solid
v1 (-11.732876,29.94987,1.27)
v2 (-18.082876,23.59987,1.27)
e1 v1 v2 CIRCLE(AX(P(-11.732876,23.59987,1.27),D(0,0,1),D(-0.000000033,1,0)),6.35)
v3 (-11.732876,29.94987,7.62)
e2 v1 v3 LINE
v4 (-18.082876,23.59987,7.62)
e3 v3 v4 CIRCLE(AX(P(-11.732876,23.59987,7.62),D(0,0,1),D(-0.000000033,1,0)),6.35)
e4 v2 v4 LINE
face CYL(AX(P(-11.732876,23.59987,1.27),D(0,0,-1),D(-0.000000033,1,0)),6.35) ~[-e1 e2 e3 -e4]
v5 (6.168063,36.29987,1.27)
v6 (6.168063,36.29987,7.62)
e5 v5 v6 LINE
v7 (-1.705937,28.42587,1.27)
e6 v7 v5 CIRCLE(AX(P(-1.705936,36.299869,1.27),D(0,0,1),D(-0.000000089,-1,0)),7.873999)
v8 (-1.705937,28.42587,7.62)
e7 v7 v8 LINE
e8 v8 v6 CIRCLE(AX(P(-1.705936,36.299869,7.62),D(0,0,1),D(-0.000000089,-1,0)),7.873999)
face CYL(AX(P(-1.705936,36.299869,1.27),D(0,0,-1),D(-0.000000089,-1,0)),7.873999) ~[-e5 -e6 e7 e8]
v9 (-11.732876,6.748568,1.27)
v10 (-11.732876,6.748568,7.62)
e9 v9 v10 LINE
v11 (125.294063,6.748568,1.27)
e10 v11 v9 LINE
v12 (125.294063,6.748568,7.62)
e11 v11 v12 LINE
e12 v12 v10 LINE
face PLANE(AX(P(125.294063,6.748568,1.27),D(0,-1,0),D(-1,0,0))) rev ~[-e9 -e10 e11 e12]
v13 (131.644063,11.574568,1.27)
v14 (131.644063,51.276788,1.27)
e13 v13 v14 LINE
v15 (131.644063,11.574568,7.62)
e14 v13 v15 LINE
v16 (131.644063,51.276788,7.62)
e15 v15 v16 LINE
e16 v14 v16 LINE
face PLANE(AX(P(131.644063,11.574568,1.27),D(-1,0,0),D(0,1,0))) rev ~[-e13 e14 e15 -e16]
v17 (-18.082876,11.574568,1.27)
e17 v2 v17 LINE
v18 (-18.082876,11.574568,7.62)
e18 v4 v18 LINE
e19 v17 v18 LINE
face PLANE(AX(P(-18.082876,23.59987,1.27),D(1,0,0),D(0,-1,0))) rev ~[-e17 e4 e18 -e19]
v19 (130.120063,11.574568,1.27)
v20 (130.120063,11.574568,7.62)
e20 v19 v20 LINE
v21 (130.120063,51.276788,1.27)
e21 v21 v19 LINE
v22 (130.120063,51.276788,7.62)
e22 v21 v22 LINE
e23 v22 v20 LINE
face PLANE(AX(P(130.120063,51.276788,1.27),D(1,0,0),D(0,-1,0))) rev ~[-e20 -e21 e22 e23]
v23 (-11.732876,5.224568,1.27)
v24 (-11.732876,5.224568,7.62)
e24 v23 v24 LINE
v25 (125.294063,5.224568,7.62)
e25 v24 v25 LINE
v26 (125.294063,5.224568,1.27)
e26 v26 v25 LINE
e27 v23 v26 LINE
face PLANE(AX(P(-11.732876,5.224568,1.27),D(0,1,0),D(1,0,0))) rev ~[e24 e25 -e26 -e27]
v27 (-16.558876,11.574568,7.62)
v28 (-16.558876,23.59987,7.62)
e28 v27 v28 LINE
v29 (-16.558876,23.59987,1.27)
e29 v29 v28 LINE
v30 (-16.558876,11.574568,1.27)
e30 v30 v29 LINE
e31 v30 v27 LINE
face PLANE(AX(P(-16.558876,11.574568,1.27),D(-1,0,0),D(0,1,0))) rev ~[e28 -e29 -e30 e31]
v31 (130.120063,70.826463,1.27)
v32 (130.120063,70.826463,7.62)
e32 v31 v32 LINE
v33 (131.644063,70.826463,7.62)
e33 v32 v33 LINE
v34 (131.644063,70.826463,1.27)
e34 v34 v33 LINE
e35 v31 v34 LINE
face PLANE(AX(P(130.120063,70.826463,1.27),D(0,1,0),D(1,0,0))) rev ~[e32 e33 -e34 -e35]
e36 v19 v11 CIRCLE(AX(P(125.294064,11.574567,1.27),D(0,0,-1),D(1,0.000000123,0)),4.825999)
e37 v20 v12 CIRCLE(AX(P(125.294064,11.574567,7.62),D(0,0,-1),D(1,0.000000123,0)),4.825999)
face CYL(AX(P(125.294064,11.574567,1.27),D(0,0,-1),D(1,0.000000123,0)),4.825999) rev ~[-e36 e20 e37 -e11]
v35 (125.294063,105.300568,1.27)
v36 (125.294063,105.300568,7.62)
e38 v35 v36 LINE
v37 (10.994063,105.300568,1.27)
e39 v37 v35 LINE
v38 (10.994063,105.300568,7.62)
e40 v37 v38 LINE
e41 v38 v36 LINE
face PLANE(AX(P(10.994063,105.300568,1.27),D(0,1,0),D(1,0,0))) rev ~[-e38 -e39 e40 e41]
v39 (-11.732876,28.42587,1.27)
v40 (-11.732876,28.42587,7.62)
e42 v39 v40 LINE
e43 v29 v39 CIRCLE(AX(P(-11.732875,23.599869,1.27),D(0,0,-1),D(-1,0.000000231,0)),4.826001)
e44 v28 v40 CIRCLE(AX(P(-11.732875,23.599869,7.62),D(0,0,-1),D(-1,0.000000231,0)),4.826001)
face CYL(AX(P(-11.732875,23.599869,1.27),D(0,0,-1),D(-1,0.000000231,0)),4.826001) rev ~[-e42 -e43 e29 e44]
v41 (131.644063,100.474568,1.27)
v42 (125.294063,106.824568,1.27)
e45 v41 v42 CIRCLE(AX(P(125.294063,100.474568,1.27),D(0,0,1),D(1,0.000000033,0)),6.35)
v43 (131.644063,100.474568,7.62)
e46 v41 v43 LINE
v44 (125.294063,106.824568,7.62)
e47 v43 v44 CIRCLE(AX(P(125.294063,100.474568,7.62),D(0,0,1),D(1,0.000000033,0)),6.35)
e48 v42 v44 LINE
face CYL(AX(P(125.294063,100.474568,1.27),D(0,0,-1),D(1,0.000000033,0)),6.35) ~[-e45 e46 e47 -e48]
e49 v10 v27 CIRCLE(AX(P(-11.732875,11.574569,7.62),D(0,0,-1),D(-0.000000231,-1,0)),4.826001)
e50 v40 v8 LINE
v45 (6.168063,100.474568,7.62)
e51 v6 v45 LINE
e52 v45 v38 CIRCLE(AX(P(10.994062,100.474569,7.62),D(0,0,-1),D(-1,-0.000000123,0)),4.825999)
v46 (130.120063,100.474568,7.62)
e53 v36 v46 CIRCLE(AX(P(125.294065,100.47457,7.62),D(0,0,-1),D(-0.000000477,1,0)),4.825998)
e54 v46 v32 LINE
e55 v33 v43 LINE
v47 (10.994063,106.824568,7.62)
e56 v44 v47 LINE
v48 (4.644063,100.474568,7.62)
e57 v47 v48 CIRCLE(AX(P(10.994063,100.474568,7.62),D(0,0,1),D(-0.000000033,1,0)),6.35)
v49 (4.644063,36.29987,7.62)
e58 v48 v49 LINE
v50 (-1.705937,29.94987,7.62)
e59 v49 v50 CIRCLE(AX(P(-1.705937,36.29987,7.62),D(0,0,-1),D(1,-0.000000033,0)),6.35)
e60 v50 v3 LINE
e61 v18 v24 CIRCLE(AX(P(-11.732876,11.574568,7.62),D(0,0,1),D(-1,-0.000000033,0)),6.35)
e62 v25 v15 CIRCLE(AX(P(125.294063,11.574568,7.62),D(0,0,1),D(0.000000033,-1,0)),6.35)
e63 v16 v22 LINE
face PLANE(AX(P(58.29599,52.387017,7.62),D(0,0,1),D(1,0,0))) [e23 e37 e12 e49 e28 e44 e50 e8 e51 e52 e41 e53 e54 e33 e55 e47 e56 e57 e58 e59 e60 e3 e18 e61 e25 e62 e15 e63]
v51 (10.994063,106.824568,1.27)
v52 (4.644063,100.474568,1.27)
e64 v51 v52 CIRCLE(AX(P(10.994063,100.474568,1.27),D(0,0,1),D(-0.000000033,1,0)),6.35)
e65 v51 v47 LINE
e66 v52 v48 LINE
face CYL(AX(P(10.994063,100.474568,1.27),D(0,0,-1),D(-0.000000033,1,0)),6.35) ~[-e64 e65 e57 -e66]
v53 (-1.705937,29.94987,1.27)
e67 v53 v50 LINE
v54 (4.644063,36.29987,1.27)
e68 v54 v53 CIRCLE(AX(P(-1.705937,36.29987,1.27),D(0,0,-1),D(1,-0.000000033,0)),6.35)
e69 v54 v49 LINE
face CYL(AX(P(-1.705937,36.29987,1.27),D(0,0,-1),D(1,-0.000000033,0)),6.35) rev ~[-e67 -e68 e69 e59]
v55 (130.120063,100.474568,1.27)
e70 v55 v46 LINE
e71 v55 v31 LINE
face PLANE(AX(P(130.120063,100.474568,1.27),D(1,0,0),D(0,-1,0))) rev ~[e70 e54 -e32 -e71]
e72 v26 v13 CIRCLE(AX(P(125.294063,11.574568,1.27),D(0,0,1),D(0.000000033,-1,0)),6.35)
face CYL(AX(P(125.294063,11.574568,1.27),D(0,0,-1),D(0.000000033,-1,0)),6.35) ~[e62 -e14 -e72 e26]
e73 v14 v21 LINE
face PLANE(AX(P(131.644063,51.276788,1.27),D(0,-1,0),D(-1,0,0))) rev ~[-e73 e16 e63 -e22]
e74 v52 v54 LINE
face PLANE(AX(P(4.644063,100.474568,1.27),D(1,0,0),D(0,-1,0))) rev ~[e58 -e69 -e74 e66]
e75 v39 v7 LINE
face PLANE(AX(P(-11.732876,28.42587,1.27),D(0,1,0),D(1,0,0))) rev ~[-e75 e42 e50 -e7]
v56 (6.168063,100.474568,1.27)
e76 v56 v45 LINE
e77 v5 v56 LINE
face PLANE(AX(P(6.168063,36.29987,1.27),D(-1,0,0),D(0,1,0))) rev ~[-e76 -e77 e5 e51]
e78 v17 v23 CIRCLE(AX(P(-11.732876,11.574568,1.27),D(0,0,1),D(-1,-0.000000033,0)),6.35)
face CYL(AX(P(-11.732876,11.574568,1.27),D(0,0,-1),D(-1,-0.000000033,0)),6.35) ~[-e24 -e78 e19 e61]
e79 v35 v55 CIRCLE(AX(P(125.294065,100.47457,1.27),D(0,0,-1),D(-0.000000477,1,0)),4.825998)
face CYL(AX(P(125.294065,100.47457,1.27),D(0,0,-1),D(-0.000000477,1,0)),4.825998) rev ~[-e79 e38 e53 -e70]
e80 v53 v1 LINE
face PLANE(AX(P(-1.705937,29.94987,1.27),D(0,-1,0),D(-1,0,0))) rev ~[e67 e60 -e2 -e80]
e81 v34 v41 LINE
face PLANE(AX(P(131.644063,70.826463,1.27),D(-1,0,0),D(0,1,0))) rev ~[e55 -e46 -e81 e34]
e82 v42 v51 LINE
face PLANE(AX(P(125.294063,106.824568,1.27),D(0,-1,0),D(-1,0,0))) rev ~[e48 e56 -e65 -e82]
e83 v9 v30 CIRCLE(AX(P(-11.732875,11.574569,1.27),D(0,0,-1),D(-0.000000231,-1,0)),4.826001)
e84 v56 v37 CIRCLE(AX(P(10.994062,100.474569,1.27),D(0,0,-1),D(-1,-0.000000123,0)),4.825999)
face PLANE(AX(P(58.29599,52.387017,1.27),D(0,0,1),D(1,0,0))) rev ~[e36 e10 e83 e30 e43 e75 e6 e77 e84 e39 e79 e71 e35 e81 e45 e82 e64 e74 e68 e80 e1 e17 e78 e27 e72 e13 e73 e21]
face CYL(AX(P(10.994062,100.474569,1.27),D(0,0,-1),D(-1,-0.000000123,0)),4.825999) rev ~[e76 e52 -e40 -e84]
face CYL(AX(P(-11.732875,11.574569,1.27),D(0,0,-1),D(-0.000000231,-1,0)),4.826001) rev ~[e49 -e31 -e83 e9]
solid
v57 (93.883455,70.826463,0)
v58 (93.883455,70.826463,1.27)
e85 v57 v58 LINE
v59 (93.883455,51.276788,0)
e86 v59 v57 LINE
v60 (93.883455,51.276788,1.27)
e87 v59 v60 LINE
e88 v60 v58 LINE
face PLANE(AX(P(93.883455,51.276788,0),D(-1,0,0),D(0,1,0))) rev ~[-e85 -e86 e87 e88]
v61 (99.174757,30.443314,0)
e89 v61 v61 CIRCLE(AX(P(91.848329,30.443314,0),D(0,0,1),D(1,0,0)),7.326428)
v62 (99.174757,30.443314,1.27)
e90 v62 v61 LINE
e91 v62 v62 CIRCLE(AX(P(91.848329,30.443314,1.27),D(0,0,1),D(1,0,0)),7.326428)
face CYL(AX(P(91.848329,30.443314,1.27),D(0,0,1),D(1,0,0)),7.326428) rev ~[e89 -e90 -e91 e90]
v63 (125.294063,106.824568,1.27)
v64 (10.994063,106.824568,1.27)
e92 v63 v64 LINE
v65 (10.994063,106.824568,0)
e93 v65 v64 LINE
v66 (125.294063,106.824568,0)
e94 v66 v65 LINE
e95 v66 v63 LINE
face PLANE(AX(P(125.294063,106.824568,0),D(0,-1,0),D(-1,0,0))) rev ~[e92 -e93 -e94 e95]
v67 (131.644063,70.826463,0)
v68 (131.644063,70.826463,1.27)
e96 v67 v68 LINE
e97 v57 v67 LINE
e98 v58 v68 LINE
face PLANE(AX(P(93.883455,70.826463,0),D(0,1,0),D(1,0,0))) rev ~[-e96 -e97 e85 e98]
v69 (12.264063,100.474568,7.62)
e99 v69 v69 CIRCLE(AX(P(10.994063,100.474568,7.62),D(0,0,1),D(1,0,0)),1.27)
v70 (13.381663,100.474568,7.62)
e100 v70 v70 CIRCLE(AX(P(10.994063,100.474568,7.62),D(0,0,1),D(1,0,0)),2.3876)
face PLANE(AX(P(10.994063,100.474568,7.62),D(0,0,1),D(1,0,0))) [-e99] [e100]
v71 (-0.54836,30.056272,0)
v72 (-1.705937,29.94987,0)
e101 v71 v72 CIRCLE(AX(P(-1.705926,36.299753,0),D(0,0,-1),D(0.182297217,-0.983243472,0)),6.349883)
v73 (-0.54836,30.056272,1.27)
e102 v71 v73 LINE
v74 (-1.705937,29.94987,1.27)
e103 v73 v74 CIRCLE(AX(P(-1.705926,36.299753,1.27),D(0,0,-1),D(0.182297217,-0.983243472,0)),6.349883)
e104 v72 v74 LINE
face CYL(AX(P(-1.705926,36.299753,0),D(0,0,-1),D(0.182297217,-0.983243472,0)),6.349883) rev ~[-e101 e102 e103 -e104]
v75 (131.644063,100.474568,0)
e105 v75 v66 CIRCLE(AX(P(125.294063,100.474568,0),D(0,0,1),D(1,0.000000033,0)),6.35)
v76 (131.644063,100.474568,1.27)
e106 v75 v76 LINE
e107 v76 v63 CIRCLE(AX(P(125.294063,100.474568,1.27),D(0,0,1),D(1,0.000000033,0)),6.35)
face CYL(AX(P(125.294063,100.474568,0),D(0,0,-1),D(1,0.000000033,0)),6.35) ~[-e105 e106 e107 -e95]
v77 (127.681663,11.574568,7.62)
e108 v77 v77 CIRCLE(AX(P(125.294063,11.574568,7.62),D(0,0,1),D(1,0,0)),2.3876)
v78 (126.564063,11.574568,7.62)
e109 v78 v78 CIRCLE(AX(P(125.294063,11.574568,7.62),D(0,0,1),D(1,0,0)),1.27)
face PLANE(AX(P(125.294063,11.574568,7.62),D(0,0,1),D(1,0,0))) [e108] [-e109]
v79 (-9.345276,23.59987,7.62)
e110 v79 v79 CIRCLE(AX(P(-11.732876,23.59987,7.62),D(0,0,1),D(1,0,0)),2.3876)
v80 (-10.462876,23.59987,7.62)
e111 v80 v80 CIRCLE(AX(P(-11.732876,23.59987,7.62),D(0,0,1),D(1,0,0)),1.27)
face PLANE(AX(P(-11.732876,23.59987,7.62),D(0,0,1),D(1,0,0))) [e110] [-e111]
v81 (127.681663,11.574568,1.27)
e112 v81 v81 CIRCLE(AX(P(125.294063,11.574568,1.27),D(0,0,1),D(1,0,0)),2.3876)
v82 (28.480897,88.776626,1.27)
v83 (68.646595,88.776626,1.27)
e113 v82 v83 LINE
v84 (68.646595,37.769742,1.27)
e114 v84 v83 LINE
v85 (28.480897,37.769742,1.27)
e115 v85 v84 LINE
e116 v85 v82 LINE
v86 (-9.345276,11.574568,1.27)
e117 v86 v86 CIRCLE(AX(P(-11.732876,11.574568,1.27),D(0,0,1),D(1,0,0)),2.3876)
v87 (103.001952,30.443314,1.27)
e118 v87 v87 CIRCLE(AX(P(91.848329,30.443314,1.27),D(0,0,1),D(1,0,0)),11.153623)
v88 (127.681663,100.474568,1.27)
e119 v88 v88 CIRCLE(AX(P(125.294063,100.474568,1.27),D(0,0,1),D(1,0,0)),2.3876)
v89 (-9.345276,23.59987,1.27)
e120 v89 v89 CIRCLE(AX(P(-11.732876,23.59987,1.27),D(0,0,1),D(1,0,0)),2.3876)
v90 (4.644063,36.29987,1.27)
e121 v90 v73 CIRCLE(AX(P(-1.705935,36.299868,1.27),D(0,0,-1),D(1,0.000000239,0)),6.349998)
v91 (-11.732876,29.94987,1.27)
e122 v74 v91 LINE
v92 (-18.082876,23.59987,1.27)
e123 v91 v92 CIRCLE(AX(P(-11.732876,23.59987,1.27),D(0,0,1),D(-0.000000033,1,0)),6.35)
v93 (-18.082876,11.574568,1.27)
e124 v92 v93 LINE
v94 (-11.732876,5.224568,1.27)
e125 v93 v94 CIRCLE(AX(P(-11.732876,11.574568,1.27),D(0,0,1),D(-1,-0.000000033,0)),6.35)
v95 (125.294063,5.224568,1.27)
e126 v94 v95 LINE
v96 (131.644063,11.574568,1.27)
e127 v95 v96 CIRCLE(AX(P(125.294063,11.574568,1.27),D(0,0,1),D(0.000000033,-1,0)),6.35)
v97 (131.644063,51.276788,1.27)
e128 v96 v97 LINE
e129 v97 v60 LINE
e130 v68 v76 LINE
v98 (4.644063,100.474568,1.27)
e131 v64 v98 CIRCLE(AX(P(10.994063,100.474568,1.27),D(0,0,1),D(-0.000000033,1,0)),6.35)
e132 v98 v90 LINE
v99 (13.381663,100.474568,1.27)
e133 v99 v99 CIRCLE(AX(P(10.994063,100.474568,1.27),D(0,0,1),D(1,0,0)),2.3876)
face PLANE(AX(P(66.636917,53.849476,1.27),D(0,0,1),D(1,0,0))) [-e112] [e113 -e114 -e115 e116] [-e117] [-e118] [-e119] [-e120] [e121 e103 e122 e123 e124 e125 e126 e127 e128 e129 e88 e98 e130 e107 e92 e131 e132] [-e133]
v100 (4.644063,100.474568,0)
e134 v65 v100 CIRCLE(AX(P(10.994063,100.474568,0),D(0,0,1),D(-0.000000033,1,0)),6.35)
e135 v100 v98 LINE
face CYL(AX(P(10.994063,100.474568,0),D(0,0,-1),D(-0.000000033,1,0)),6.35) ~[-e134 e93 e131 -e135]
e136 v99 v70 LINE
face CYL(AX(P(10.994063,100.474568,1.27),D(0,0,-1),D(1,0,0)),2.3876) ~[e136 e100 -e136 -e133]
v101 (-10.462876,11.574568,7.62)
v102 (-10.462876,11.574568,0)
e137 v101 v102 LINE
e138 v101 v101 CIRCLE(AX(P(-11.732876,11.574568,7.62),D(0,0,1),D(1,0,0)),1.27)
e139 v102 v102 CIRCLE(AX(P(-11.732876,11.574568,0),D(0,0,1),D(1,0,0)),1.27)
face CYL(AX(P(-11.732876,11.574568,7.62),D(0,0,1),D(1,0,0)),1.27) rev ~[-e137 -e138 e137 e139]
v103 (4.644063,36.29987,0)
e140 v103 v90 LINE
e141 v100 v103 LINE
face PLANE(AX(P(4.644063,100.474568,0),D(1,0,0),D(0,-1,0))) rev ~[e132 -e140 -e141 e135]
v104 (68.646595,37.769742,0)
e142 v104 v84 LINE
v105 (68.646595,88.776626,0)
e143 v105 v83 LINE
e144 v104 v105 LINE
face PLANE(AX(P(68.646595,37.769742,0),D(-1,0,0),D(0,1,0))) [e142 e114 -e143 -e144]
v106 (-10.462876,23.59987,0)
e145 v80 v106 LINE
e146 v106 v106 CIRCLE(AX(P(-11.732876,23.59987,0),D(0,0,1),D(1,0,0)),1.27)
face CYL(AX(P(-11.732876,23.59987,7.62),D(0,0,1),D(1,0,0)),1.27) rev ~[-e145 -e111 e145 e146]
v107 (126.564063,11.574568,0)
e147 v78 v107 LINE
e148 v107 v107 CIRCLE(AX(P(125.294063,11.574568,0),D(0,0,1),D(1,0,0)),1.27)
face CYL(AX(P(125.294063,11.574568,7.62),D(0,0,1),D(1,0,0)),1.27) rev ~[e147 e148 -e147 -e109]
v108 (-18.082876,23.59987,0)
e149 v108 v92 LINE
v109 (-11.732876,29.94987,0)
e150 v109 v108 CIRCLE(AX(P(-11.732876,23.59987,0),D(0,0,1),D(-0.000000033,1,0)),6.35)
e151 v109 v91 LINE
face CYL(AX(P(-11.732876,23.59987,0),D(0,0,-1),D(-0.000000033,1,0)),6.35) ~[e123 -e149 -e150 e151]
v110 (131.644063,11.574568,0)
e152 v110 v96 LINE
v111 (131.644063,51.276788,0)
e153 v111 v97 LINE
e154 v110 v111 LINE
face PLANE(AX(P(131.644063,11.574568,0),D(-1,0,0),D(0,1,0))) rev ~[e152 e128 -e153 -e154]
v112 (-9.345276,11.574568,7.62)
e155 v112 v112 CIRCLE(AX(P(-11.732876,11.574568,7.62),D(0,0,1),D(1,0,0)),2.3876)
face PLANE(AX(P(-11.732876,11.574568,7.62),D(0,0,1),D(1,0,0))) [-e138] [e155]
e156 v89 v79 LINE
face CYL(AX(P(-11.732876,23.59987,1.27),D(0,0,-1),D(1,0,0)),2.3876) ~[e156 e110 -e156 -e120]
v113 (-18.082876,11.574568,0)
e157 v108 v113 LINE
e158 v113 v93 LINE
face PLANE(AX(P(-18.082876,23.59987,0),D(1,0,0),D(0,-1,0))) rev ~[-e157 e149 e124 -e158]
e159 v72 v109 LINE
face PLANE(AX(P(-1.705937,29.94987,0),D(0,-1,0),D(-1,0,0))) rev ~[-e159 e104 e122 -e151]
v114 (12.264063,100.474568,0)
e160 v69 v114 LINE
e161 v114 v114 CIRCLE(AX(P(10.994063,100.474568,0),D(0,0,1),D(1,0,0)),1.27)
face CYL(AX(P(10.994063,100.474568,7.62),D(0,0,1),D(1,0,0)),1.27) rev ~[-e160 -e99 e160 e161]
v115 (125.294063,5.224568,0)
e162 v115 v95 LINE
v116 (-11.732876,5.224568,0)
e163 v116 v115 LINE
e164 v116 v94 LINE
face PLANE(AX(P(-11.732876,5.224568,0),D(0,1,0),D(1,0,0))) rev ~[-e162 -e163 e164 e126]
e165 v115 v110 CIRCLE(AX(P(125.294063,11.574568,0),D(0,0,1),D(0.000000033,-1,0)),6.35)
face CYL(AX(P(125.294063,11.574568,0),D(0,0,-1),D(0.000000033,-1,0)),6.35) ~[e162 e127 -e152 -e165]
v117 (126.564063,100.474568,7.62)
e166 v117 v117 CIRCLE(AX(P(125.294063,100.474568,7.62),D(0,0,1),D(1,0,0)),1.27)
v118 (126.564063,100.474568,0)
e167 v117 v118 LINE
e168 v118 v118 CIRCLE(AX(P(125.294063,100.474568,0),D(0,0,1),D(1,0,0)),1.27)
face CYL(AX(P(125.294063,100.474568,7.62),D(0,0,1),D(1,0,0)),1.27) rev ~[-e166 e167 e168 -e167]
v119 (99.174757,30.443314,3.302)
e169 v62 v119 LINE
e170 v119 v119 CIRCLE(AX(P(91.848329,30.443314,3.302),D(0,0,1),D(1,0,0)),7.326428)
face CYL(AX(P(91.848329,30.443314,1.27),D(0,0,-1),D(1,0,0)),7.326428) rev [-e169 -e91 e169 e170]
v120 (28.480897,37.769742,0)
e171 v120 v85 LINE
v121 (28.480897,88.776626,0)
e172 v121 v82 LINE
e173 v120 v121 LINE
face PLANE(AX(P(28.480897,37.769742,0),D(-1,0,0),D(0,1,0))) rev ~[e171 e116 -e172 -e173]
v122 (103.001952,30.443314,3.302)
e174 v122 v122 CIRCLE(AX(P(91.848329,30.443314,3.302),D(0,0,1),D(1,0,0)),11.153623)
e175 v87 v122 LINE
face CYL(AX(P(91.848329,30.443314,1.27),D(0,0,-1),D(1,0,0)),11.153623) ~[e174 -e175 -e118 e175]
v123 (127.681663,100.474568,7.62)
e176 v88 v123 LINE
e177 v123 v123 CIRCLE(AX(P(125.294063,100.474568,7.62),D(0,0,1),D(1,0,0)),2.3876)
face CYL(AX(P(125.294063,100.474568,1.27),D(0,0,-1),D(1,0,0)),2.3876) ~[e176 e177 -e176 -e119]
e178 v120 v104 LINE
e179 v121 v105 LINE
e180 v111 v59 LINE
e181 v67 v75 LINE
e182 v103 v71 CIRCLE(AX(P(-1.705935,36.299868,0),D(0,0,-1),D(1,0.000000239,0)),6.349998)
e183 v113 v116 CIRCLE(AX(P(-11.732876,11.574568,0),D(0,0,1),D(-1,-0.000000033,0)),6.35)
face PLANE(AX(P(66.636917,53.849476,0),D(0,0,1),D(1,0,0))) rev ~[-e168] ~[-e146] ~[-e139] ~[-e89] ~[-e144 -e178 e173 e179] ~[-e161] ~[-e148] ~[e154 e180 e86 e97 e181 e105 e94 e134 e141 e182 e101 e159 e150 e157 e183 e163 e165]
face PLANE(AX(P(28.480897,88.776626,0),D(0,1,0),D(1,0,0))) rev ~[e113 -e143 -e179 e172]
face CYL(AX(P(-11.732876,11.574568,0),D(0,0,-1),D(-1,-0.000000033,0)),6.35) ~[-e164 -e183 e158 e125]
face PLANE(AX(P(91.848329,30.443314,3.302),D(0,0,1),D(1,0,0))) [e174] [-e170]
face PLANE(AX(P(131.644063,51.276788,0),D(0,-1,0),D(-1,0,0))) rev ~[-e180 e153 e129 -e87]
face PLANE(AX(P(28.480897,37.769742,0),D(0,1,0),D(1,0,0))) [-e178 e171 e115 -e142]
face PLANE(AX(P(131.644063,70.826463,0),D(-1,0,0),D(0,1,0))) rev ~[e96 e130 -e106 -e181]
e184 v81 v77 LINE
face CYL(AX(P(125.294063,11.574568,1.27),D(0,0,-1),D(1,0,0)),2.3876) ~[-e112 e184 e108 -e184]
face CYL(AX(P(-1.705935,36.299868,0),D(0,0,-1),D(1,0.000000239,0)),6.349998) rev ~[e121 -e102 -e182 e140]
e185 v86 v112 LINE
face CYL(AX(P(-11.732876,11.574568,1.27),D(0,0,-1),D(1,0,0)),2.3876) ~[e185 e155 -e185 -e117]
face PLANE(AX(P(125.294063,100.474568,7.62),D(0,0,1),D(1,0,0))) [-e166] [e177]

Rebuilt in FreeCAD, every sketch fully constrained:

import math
import FreeCAD as App
import Part
import Sketcher
from FreeCAD import Vector
Q = App.Units.Quantity


def add_polygon(sketch, points):
    """Adds a closed chain of lines whose ends are joined by coincident constraints."""
    first, n = sketch.GeometryCount, len(points)
    for a, b in zip(points, points[1:] + points[:1]):
        sketch.addGeometry(Part.LineSegment(App.Vector(*a, 0), App.Vector(*b, 0)), False)
    for i in range(n):
        sketch.addConstraint(Sketcher.Constraint("Coincident", first + i, 2, first + (i + 1) % n, 1))

doc = App.newDocument("Part")
body = doc.addObject("PartDesign::Body", "Body")

# Sketch on XY plane
sketch1 = body.newObject("Sketcher::SketchObject", "Sketch")
sketch1.AttachmentSupport = (doc.getObject("XY_Plane"), [""])
sketch1.MapMode = "FlatFace"
sketch1.addGeometry(Part.LineSegment(Vector(-11.732876, 5.224568, 0), Vector(125.294063, 5.224568, 0)), False)  # 0
sketch1.addGeometry(Part.ArcOfCircle(Part.Circle(Vector(125.294063, 11.574568, 0), Vector(0, 0, 1), 6.35), math.radians(-89.999998), math.radians(-0.000002)), False)  # 1
sketch1.addGeometry(Part.LineSegment(Vector(131.644063, 11.574568, 0), Vector(131.644063, 51.276788, 0)), False)  # 2
sketch1.addGeometry(Part.LineSegment(Vector(131.644063, 51.276788, 0), Vector(93.883455, 51.276788, 0)), False)  # 3
sketch1.addGeometry(Part.LineSegment(Vector(93.883455, 51.276788, 0), Vector(93.883455, 70.826463, 0)), False)  # 4
sketch1.addGeometry(Part.LineSegment(Vector(93.883455, 70.826463, 0), Vector(131.644063, 70.826463, 0)), False)  # 5
sketch1.addGeometry(Part.LineSegment(Vector(131.644063, 70.826463, 0), Vector(131.644063, 100.474568, 0)), False)  # 6
sketch1.addGeometry(Part.ArcOfCircle(Part.Circle(Vector(125.294063, 100.474568, 0), Vector(0, 0, 1), 6.35), math.radians(0.000002), math.radians(89.999998)), False)  # 7
sketch1.addGeometry(Part.LineSegment(Vector(125.294063, 106.824568, 0), Vector(10.994063, 106.824568, 0)), False)  # 8
sketch1.addGeometry(Part.ArcOfCircle(Part.Circle(Vector(10.994063, 100.474568, 0), Vector(0, 0, 1), 6.35), math.radians(90.000002), math.radians(179.999998)), False)  # 9
sketch1.addGeometry(Part.LineSegment(Vector(4.644063, 100.474568, 0), Vector(4.644063, 36.29987, 0)), False)  # 10
sketch1.addGeometry(Part.ArcOfCircle(Part.Circle(Vector(-1.705935, 36.299868, 0), Vector(0, 0, 1), 6.349998), math.radians(-79.496513), math.radians(0.000014)), False)  # 11
sketch1.addGeometry(Part.ArcOfCircle(Part.Circle(Vector(-1.705926, 36.299753, 0), Vector(0, 0, 1), 6.349883), math.radians(-90.000099), math.radians(-79.496405)), False)  # 12
sketch1.addGeometry(Part.LineSegment(Vector(-1.705937, 29.94987, 0), Vector(-11.732876, 29.94987, 0)), False)  # 13
sketch1.addGeometry(Part.ArcOfCircle(Part.Circle(Vector(-11.732876, 23.59987, 0), Vector(0, 0, 1), 6.35), math.radians(90.000002), math.radians(179.999998)), False)  # 14
sketch1.addGeometry(Part.LineSegment(Vector(-18.082876, 23.59987, 0), Vector(-18.082876, 11.574568, 0)), False)  # 15
sketch1.addGeometry(Part.ArcOfCircle(Part.Circle(Vector(-11.732876, 11.574568, 0), Vector(0, 0, 1), 6.35), math.radians(-179.999998), math.radians(-90.000002)), False)  # 16
add_polygon(sketch1, [(68.646595, 37.769742), (28.480897, 37.769742), (28.480897, 88.776626), (68.646595, 88.776626)])  # lines 17-20
sketch1.addConstraint(Sketcher.Constraint("Coincident", 0, 2, 1, 1))
sketch1.addConstraint(Sketcher.Constraint("Coincident", 1, 2, 2, 1))
sketch1.addConstraint(Sketcher.Constraint("Coincident", 2, 2, 3, 1))
sketch1.addConstraint(Sketcher.Constraint("Coincident", 3, 2, 4, 1))
sketch1.addConstraint(Sketcher.Constraint("Coincident", 4, 2, 5, 1))
sketch1.addConstraint(Sketcher.Constraint("Coincident", 5, 2, 6, 1))
sketch1.addConstraint(Sketcher.Constraint("Coincident", 6, 2, 7, 1))
sketch1.addConstraint(Sketcher.Constraint("Coincident", 7, 2, 8, 1))
sketch1.addConstraint(Sketcher.Constraint("Coincident", 8, 2, 9, 1))
sketch1.addConstraint(Sketcher.Constraint("Coincident", 9, 2, 10, 1))
sketch1.addConstraint(Sketcher.Constraint("Coincident", 10, 2, 11, 2))
sketch1.addConstraint(Sketcher.Constraint("Coincident", 11, 1, 12, 2))
sketch1.addConstraint(Sketcher.Constraint("Coincident", 12, 1, 13, 1))
sketch1.addConstraint(Sketcher.Constraint("Coincident", 13, 2, 14, 1))
sketch1.addConstraint(Sketcher.Constraint("Coincident", 14, 2, 15, 1))
sketch1.addConstraint(Sketcher.Constraint("Coincident", 15, 2, 16, 1))
sketch1.addConstraint(Sketcher.Constraint("Coincident", 16, 2, 0, 1))
sketch1.addConstraint(Sketcher.Constraint("Horizontal", 0))
sketch1.addConstraint(Sketcher.Constraint("Vertical", 2))
sketch1.addConstraint(Sketcher.Constraint("Horizontal", 3))
sketch1.addConstraint(Sketcher.Constraint("Vertical", 4))
sketch1.addConstraint(Sketcher.Constraint("Horizontal", 5))
sketch1.addConstraint(Sketcher.Constraint("Vertical", 6))
sketch1.addConstraint(Sketcher.Constraint("Horizontal", 8))
sketch1.addConstraint(Sketcher.Constraint("Vertical", 10))
sketch1.addConstraint(Sketcher.Constraint("Horizontal", 13))
sketch1.addConstraint(Sketcher.Constraint("Vertical", 15))
sketch1.addConstraint(Sketcher.Constraint("Horizontal", 17))
sketch1.addConstraint(Sketcher.Constraint("Vertical", 18))
sketch1.addConstraint(Sketcher.Constraint("Horizontal", 19))
sketch1.addConstraint(Sketcher.Constraint("Vertical", 20))
sketch1.addConstraint(Sketcher.Constraint("Radius", 1, Q("0.25 in")))
sketch1.addConstraint(Sketcher.Constraint("Radius", 7, Q("0.25 in")))
sketch1.addConstraint(Sketcher.Constraint("Radius", 9, Q("0.25 in")))
sketch1.addConstraint(Sketcher.Constraint("Radius", 11, Q("0.2499999 in")))
sketch1.addConstraint(Sketcher.Constraint("Radius", 14, Q("0.25 in")))
sketch1.addConstraint(Sketcher.Constraint("Radius", 16, Q("0.25 in")))
sketch1.addConstraint(Sketcher.Constraint("DistanceX", 8, 2, 8, 1, Q("4.5 in")))
sketch1.addConstraint(Sketcher.Constraint("DistanceX", 11, 3, 1, 3, Q("4.9999999 in")))
sketch1.addConstraint(Sketcher.Constraint("DistanceX", 11, 3, 7, 3, Q("4.9999999 in")))
sketch1.addConstraint(Sketcher.Constraint("DistanceX", 11, 3, 0, 2, Q("4.9999999 in")))
sketch1.addConstraint(Sketcher.Constraint("DistanceY", 1, 3, 7, 3, Q("3.5 in")))
sketch1.addConstraint(Sketcher.Constraint("DistanceY", 14, 3, 11, 3, Q("0.4999999 in")))
sketch1.addConstraint(Sketcher.Constraint("DistanceY", 1, 2, 7, 3, Q("3.5 in")))
sketch1.addConstraint(Sketcher.Constraint("DistanceX", 11, 3, 8, 2, Q("0.4999999 in")))
sketch1.addConstraint(Sketcher.Constraint("DistanceY", 14, 3, 10, 2, Q("0.5 in")))
sketch1.addConstraint(Sketcher.Constraint("DistanceY", 6, 2, 7, 2, Q("0.25 in")))
sketch1.addConstraint(Sketcher.Constraint("DistanceY", 9, 2, 8, 2, Q("0.25 in")))
sketch1.addConstraint(Sketcher.Constraint("DistanceX", 12, 1, 10, 2, Q("0.25 in")))
sketch1.addConstraint(Sketcher.Constraint("DistanceX", 14, 2, 13, 2, Q("0.25 in")))
sketch1.addConstraint(Sketcher.Constraint("DistanceY", 14, 2, 13, 2, Q("0.25 in")))
sketch1.addConstraint(Sketcher.Constraint("DistanceX", 15, 2, 16, 2, Q("0.25 in")))
sketch1.addConstraint(Sketcher.Constraint("DistanceY", 16, 2, 15, 2, Q("0.25 in")))
sketch1.addConstraint(Sketcher.Constraint("DistanceX", 17, 2, 17, 1, Q("40.165698 mm")))
sketch1.addConstraint(Sketcher.Constraint("DistanceY", 10, 2, 10, 1, Q("64.174698 mm")))
sketch1.addConstraint(Sketcher.Constraint("Radius", 12, Q("6.349883 mm")))
sketch1.addConstraint(Sketcher.Constraint("DistanceX", 0, 1, 0, 2, Q("137.026939 mm")))
sketch1.addConstraint(Sketcher.Constraint("DistanceY", 2, 1, 2, 2, Q("39.70222 mm")))
sketch1.addConstraint(Sketcher.Constraint("DistanceY", 11, 1, 10, 2, Q("6.243598 mm")))
sketch1.addConstraint(Sketcher.Constraint("DistanceX", 3, 2, 3, 1, Q("37.760608 mm")))
sketch1.addConstraint(Sketcher.Constraint("DistanceY", 4, 1, 4, 2, Q("19.549675 mm")))
sketch1.addConstraint(Sketcher.Constraint("DistanceY", 18, 1, 18, 2, Q("51.006884 mm")))
sketch1.addConstraint(Sketcher.Constraint("DistanceY", -1, 1, 1, 3, Q("11.574568 mm")))
sketch1.addConstraint(Sketcher.Constraint("DistanceX", 11, 1, -1, 1, Q("0.54836 mm")))
sketch1.addConstraint(Sketcher.Constraint("DistanceY", 11, 1, 17, 2, Q("7.71347 mm")))
sketch1.addConstraint(Sketcher.Constraint("DistanceX", 19, 2, 4, 2, Q("25.23686 mm")))
pad1 = body.newObject("PartDesign::Pad", "Pad")
pad1.Profile = sketch1
pad1.Length = Q("0.05 in")

# Sketch on XY plane
sketch2 = body.newObject("Sketcher::SketchObject", "Sketch001")
sketch2.AttachmentSupport = (doc.getObject("XY_Plane"), [""])
sketch2.MapMode = "FlatFace"
sketch2.AttachmentOffset = App.Placement(Vector(0, 0, 0.05 * 25.4), App.Rotation())
sketch2.addGeometry(Part.Circle(Vector(10.994063, 100.474568, 0), Vector(0, 0, 1), 2.3876), False)
sketch2.addGeometry(Part.Circle(Vector(125.294063, 100.474568, 0), Vector(0, 0, 1), 2.3876), False)
sketch2.addGeometry(Part.Circle(Vector(125.294063, 11.574568, 0), Vector(0, 0, 1), 2.3876), False)
sketch2.addGeometry(Part.Circle(Vector(-11.732876, 23.59987, 0), Vector(0, 0, 1), 2.3876), False)
sketch2.addGeometry(Part.Circle(Vector(-11.732876, 11.574568, 0), Vector(0, 0, 1), 2.3876), False)
sketch2.addConstraint(Sketcher.Constraint("Equal", 0, 1))
sketch2.addConstraint(Sketcher.Constraint("Equal", 1, 2))
sketch2.addConstraint(Sketcher.Constraint("Equal", 2, 3))
sketch2.addConstraint(Sketcher.Constraint("Equal", 3, 4))
sketch2.addConstraint(Sketcher.Constraint("Horizontal", 0, 3, 1, 3))
sketch2.addConstraint(Sketcher.Constraint("Horizontal", 2, 3, 4, 3))
sketch2.addConstraint(Sketcher.Constraint("Vertical", 1, 3, 2, 3))
sketch2.addConstraint(Sketcher.Constraint("Vertical", 3, 3, 4, 3))
sketch2.addConstraint(Sketcher.Constraint("Diameter", 0, Q("0.188 in")))
sketch2.addConstraint(Sketcher.Constraint("DistanceX", 0, 3, 1, 3, Q("4.5 in")))
sketch2.addConstraint(Sketcher.Constraint("DistanceY", 2, 3, 1, 3, Q("3.5 in")))
sketch2.addConstraint(Sketcher.Constraint("DistanceY", 3, 3, 0, 3, Q("76.874698 mm")))
sketch2.addConstraint(Sketcher.Constraint("DistanceY", -1, 1, 0, 3, Q("100.474568 mm")))
sketch2.addConstraint(Sketcher.Constraint("DistanceX", 3, 3, 0, 3, Q("22.726939 mm")))
sketch2.addConstraint(Sketcher.Constraint("DistanceX", -1, 1, 0, 3, Q("10.994063 mm")))
pad2 = body.newObject("PartDesign::Pad", "Pad001")
pad2.Profile = sketch2
pad2.Length = Q("0.25 in")

# Sketch on XY plane
sketch3 = body.newObject("Sketcher::SketchObject", "Sketch002")
sketch3.AttachmentSupport = (doc.getObject("XY_Plane"), [""])
sketch3.MapMode = "FlatFace"
sketch3.AttachmentOffset = App.Placement(Vector(0, 0, 0.3 * 25.4), App.Rotation())
sketch3.addGeometry(Part.Circle(Vector(10.994063, 100.474568, 0), Vector(0, 0, 1), 1.27), False)
sketch3.addGeometry(Part.Circle(Vector(-11.732876, 23.59987, 0), Vector(0, 0, 1), 1.27), False)
sketch3.addGeometry(Part.Circle(Vector(-11.732876, 11.574568, 0), Vector(0, 0, 1), 1.27), False)
sketch3.addGeometry(Part.Circle(Vector(125.294063, 11.574568, 0), Vector(0, 0, 1), 1.27), False)
sketch3.addGeometry(Part.Circle(Vector(125.294063, 100.474568, 0), Vector(0, 0, 1), 1.27), False)
sketch3.addConstraint(Sketcher.Constraint("Equal", 0, 1))
sketch3.addConstraint(Sketcher.Constraint("Equal", 1, 2))
sketch3.addConstraint(Sketcher.Constraint("Equal", 2, 3))
sketch3.addConstraint(Sketcher.Constraint("Equal", 3, 4))
sketch3.addConstraint(Sketcher.Constraint("Horizontal", 2, 3, 3, 3))
sketch3.addConstraint(Sketcher.Constraint("Horizontal", 0, 3, 4, 3))
sketch3.addConstraint(Sketcher.Constraint("Vertical", 1, 3, 2, 3))
sketch3.addConstraint(Sketcher.Constraint("Vertical", 3, 3, 4, 3))
sketch3.addConstraint(Sketcher.Constraint("Diameter", 0, Q("0.1 in")))
sketch3.addConstraint(Sketcher.Constraint("DistanceY", 2, 3, 0, 3, Q("3.5 in")))
sketch3.addConstraint(Sketcher.Constraint("DistanceX", 0, 3, 3, 3, Q("4.5 in")))
sketch3.addConstraint(Sketcher.Constraint("DistanceY", 1, 3, 0, 3, Q("76.874698 mm")))
sketch3.addConstraint(Sketcher.Constraint("DistanceY", -1, 1, 0, 3, Q("100.474568 mm")))
sketch3.addConstraint(Sketcher.Constraint("DistanceX", 1, 3, 0, 3, Q("22.726939 mm")))
sketch3.addConstraint(Sketcher.Constraint("DistanceX", -1, 1, 0, 3, Q("10.994063 mm")))
pocket1 = body.newObject("PartDesign::Pocket", "Pocket")
pocket1.Profile = sketch3
pocket1.Type = "ThroughAll"

# Sketch on XY plane
sketch4 = body.newObject("Sketcher::SketchObject", "Sketch003")
sketch4.AttachmentSupport = (doc.getObject("XY_Plane"), [""])
sketch4.MapMode = "FlatFace"
sketch4.AttachmentOffset = App.Placement(Vector(0, 0, 0.05 * 25.4), App.Rotation())
sketch4.addGeometry(Part.Circle(Vector(91.848329, 30.443314, 0), Vector(0, 0, 1), 11.153623), False)
sketch4.addGeometry(Part.Circle(Vector(91.848329, 30.443314, 0), Vector(0, 0, 1), 7.326428), False)
sketch4.addConstraint(Sketcher.Constraint("Coincident", 1, 3, 0, 3))
sketch4.addConstraint(Sketcher.Constraint("Diameter", 0, Q("22.307246 mm")))
sketch4.addConstraint(Sketcher.Constraint("Diameter", 1, Q("14.652856 mm")))
sketch4.addConstraint(Sketcher.Constraint("DistanceX", -1, 1, 0, 3, Q("91.848329 mm")))
sketch4.addConstraint(Sketcher.Constraint("DistanceY", -1, 1, 0, 3, Q("30.443314 mm")))
pad3 = body.newObject("PartDesign::Pad", "Pad002")
pad3.Profile = sketch4
pad3.Length = Q("0.08 in")

# Sketch on XY plane
sketch5 = body.newObject("Sketcher::SketchObject", "Sketch004")
sketch5.AttachmentSupport = (doc.getObject("XY_Plane"), [""])
sketch5.MapMode = "FlatFace"
sketch5.AttachmentOffset = App.Placement(Vector(0, 0, 0.05 * 25.4), App.Rotation())
sketch5.addGeometry(Part.Circle(Vector(91.848329, 30.443314, 0), Vector(0, 0, 1), 7.326428), False)
sketch5.addConstraint(Sketcher.Constraint("Diameter", 0, Q("14.652856 mm")))
sketch5.addConstraint(Sketcher.Constraint("DistanceX", -1, 1, 0, 3, Q("91.848329 mm")))
sketch5.addConstraint(Sketcher.Constraint("DistanceY", -1, 1, 0, 3, Q("30.443314 mm")))
pocket2 = body.newObject("PartDesign::Pocket", "Pocket001")
pocket2.Profile = sketch5
pocket2.Type = "ThroughAll"
body2 = doc.addObject("PartDesign::Body", "Body001")

# Sketch on XY plane
sketch6 = body2.newObject("Sketcher::SketchObject", "Sketch005")
sketch6.AttachmentSupport = (doc.getObject("XY_Plane001"), [""])
sketch6.MapMode = "FlatFace"
sketch6.AttachmentOffset = App.Placement(Vector(0, 0, 0.05 * 25.4), App.Rotation())
sketch6.addGeometry(Part.LineSegment(Vector(130.120063, 51.276788, 0), Vector(130.120063, 11.574568, 0)), False)
sketch6.addGeometry(Part.ArcOfCircle(Part.Circle(Vector(125.294064, 11.574567, 0), Vector(0, 0, 1), 4.825999), math.radians(-90.000007), math.radians(0.000007)), False)
sketch6.addGeometry(Part.LineSegment(Vector(125.294063, 6.748568, 0), Vector(-11.732876, 6.748568, 0)), False)
sketch6.addGeometry(Part.ArcOfCircle(Part.Circle(Vector(-11.732875, 11.574569, 0), Vector(0, 0, 1), 4.826001), math.radians(-179.999987), math.radians(-90.000013)), False)
sketch6.addGeometry(Part.LineSegment(Vector(-16.558876, 11.574568, 0), Vector(-16.558876, 23.59987, 0)), False)
sketch6.addGeometry(Part.ArcOfCircle(Part.Circle(Vector(-11.732875, 23.599869, 0), Vector(0, 0, 1), 4.826001), math.radians(90.000013), math.radians(179.999987)), False)
sketch6.addGeometry(Part.LineSegment(Vector(-11.732876, 28.42587, 0), Vector(-1.705937, 28.42587, 0)), False)
sketch6.addGeometry(Part.ArcOfCircle(Part.Circle(Vector(-1.705936, 36.299869, 0), Vector(0, 0, 1), 7.873999), math.radians(-90.000005), math.radians(0.000005)), False)
sketch6.addGeometry(Part.LineSegment(Vector(6.168063, 36.29987, 0), Vector(6.168063, 100.474568, 0)), False)
sketch6.addGeometry(Part.ArcOfCircle(Part.Circle(Vector(10.994062, 100.474569, 0), Vector(0, 0, 1), 4.825999), math.radians(89.999993), math.radians(180.000007)), False)
sketch6.addGeometry(Part.LineSegment(Vector(10.994063, 105.300568, 0), Vector(125.294063, 105.300568, 0)), False)
sketch6.addGeometry(Part.ArcOfCircle(Part.Circle(Vector(125.294065, 100.47457, 0), Vector(0, 0, 1), 4.825998), math.radians(-0.000027), math.radians(90.000027)), False)
sketch6.addGeometry(Part.LineSegment(Vector(130.120063, 100.474568, 0), Vector(130.120063, 70.826463, 0)), False)
sketch6.addGeometry(Part.LineSegment(Vector(130.120063, 70.826463, 0), Vector(131.644063, 70.826463, 0)), False)
sketch6.addGeometry(Part.LineSegment(Vector(131.644063, 70.826463, 0), Vector(131.644063, 100.474568, 0)), False)
sketch6.addGeometry(Part.ArcOfCircle(Part.Circle(Vector(125.294063, 100.474568, 0), Vector(0, 0, 1), 6.35), math.radians(0.000002), math.radians(89.999998)), False)
sketch6.addGeometry(Part.LineSegment(Vector(125.294063, 106.824568, 0), Vector(10.994063, 106.824568, 0)), False)
sketch6.addGeometry(Part.ArcOfCircle(Part.Circle(Vector(10.994063, 100.474568, 0), Vector(0, 0, 1), 6.35), math.radians(90.000002), math.radians(179.999998)), False)
sketch6.addGeometry(Part.LineSegment(Vector(4.644063, 100.474568, 0), Vector(4.644063, 36.29987, 0)), False)
sketch6.addGeometry(Part.ArcOfCircle(Part.Circle(Vector(-1.705937, 36.29987, 0), Vector(0, 0, 1), 6.35), math.radians(-89.999998), math.radians(-0.000002)), False)
sketch6.addGeometry(Part.LineSegment(Vector(-1.705937, 29.94987, 0), Vector(-11.732876, 29.94987, 0)), False)
sketch6.addGeometry(Part.ArcOfCircle(Part.Circle(Vector(-11.732876, 23.59987, 0), Vector(0, 0, 1), 6.35), math.radians(90.000002), math.radians(179.999998)), False)
sketch6.addGeometry(Part.LineSegment(Vector(-18.082876, 23.59987, 0), Vector(-18.082876, 11.574568, 0)), False)
sketch6.addGeometry(Part.ArcOfCircle(Part.Circle(Vector(-11.732876, 11.574568, 0), Vector(0, 0, 1), 6.35), math.radians(-179.999998), math.radians(-90.000002)), False)
sketch6.addGeometry(Part.LineSegment(Vector(-11.732876, 5.224568, 0), Vector(125.294063, 5.224568, 0)), False)
sketch6.addGeometry(Part.ArcOfCircle(Part.Circle(Vector(125.294063, 11.574568, 0), Vector(0, 0, 1), 6.35), math.radians(-89.999998), math.radians(-0.000002)), False)
sketch6.addGeometry(Part.LineSegment(Vector(131.644063, 11.574568, 0), Vector(131.644063, 51.276788, 0)), False)
sketch6.addGeometry(Part.LineSegment(Vector(131.644063, 51.276788, 0), Vector(130.120063, 51.276788, 0)), False)
sketch6.addConstraint(Sketcher.Constraint("Tangent", 0, 2, 1, 2))
sketch6.addConstraint(Sketcher.Constraint("Tangent", 1, 1, 2, 1))
sketch6.addConstraint(Sketcher.Constraint("Tangent", 2, 2, 3, 2))
sketch6.addConstraint(Sketcher.Constraint("Tangent", 3, 1, 4, 1))
sketch6.addConstraint(Sketcher.Constraint("Tangent", 4, 2, 5, 2))
sketch6.addConstraint(Sketcher.Constraint("Tangent", 5, 1, 6, 1))
sketch6.addConstraint(Sketcher.Constraint("Tangent", 6, 2, 7, 1))
sketch6.addConstraint(Sketcher.Constraint("Tangent", 7, 2, 8, 1))
sketch6.addConstraint(Sketcher.Constraint("Tangent", 8, 2, 9, 2))
sketch6.addConstraint(Sketcher.Constraint("Tangent", 9, 1, 10, 1))
sketch6.addConstraint(Sketcher.Constraint("Tangent", 10, 2, 11, 2))
sketch6.addConstraint(Sketcher.Constraint("Tangent", 11, 1, 12, 1))
sketch6.addConstraint(Sketcher.Constraint("Coincident", 12, 2, 13, 1))
sketch6.addConstraint(Sketcher.Constraint("Coincident", 13, 2, 14, 1))
sketch6.addConstraint(Sketcher.Constraint("Tangent", 14, 2, 15, 1))
sketch6.addConstraint(Sketcher.Constraint("Tangent", 15, 2, 16, 1))
sketch6.addConstraint(Sketcher.Constraint("Tangent", 16, 2, 17, 1))
sketch6.addConstraint(Sketcher.Constraint("Tangent", 17, 2, 18, 1))
sketch6.addConstraint(Sketcher.Constraint("Tangent", 18, 2, 19, 2))
sketch6.addConstraint(Sketcher.Constraint("Tangent", 19, 1, 20, 1))
sketch6.addConstraint(Sketcher.Constraint("Tangent", 20, 2, 21, 1))
sketch6.addConstraint(Sketcher.Constraint("Tangent", 21, 2, 22, 1))
sketch6.addConstraint(Sketcher.Constraint("Tangent", 22, 2, 23, 1))
sketch6.addConstraint(Sketcher.Constraint("Tangent", 23, 2, 24, 1))
sketch6.addConstraint(Sketcher.Constraint("Tangent", 24, 2, 25, 1))
sketch6.addConstraint(Sketcher.Constraint("Tangent", 25, 2, 26, 1))
sketch6.addConstraint(Sketcher.Constraint("Coincident", 26, 2, 27, 1))
sketch6.addConstraint(Sketcher.Constraint("Coincident", 27, 2, 0, 1))
sketch6.addConstraint(Sketcher.Constraint("Vertical", 0))
sketch6.addConstraint(Sketcher.Constraint("Horizontal", 2))
sketch6.addConstraint(Sketcher.Constraint("Vertical", 4))
sketch6.addConstraint(Sketcher.Constraint("Horizontal", 6))
sketch6.addConstraint(Sketcher.Constraint("Vertical", 8))
sketch6.addConstraint(Sketcher.Constraint("Horizontal", 10))
sketch6.addConstraint(Sketcher.Constraint("Vertical", 12))
sketch6.addConstraint(Sketcher.Constraint("Horizontal", 13))
sketch6.addConstraint(Sketcher.Constraint("Vertical", 14))
sketch6.addConstraint(Sketcher.Constraint("Horizontal", 16))
sketch6.addConstraint(Sketcher.Constraint("Vertical", 18))
sketch6.addConstraint(Sketcher.Constraint("Horizontal", 20))
sketch6.addConstraint(Sketcher.Constraint("Vertical", 22))
sketch6.addConstraint(Sketcher.Constraint("Horizontal", 24))
sketch6.addConstraint(Sketcher.Constraint("Vertical", 26))
sketch6.addConstraint(Sketcher.Constraint("Horizontal", 27))
sketch6.addConstraint(Sketcher.Constraint("Coincident", 15, 3, 11, 3))
sketch6.addConstraint(Sketcher.Constraint("Coincident", 17, 3, 9, 3))
sketch6.addConstraint(Sketcher.Constraint("Coincident", 19, 3, 7, 3))
sketch6.addConstraint(Sketcher.Constraint("Coincident", 21, 3, 5, 3))
sketch6.addConstraint(Sketcher.Constraint("Coincident", 23, 3, 3, 3))
sketch6.addConstraint(Sketcher.Constraint("Coincident", 25, 3, 1, 3))
sketch6.addConstraint(Sketcher.Constraint("Equal", 1, 3))
sketch6.addConstraint(Sketcher.Constraint("Equal", 3, 5))
sketch6.addConstraint(Sketcher.Constraint("Equal", 5, 9))
sketch6.addConstraint(Sketcher.Constraint("Equal", 9, 11))
sketch6.addConstraint(Sketcher.Constraint("Equal", 17, 19))
sketch6.addConstraint(Sketcher.Constraint("Vertical", 1, 3, 11, 3))
sketch6.addConstraint(Sketcher.Constraint("Radius", 1, Q("0.19 in")))
sketch6.addConstraint(Sketcher.Constraint("Radius", 7, Q("0.31 in")))
sketch6.addConstraint(Sketcher.Constraint("DistanceX", 10, 1, 10, 2, Q("4.5 in")))
sketch6.addConstraint(Sketcher.Constraint("DistanceY", 3, 3, 9, 3, Q("3.5 in")))
sketch6.addConstraint(Sketcher.Constraint("DistanceY", 8, 1, 8, 2, Q("64.174698 mm")))
sketch6.addConstraint(Sketcher.Constraint("DistanceX", 2, 2, 2, 1, Q("137.026939 mm")))
sketch6.addConstraint(Sketcher.Constraint("DistanceY", 0, 2, 0, 1, Q("39.70222 mm")))
sketch6.addConstraint(Sketcher.Constraint("DistanceY", 12, 2, 12, 1, Q("29.648105 mm")))
sketch6.addConstraint(Sketcher.Constraint("DistanceY", -1, 1, 3, 3, Q("11.574569 mm")))
sketch6.addConstraint(Sketcher.Constraint("DistanceX", -1, 1, 1, 3, Q("125.294064 mm")))
pad4 = body2.newObject("PartDesign::Pad", "Pad003")
pad4.Profile = sketch6
pad4.Length = Q("0.25 in")

doc.recompute()
